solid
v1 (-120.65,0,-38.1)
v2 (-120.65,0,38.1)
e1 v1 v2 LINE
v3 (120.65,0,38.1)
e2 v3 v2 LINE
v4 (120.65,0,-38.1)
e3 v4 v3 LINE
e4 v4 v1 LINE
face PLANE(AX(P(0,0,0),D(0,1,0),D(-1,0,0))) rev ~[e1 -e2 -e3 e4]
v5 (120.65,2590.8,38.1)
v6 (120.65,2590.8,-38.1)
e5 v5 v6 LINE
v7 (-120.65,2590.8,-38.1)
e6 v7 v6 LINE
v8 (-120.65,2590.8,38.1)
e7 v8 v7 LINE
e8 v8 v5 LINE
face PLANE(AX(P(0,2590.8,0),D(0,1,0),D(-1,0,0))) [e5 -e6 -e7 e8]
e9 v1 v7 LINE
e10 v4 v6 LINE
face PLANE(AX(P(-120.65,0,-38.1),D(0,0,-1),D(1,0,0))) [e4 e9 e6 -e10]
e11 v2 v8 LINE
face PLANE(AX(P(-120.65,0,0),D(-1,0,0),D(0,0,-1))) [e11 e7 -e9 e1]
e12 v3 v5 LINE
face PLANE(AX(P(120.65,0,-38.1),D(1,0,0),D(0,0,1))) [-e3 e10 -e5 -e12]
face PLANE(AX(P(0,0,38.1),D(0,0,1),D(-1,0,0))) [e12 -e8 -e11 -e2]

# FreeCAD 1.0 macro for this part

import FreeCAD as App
import Part
import Sketcher

V = App.Vector
Q = App.Units.Quantity


def add_polygon(sketch, points):
    """Adds a closed chain of lines whose ends are joined by coincident constraints."""
    first, n = sketch.GeometryCount, len(points)
    for a, b in zip(points, points[1:] + points[:1]):
        sketch.addGeometry(Part.LineSegment(App.Vector(*a, 0), App.Vector(*b, 0)), False)
    for i in range(n):
        sketch.addConstraint(Sketcher.Constraint("Coincident", first + i, 2, first + (i + 1) % n, 1))

doc = App.newDocument("Part")
params = doc.addObject("Spreadsheet::Sheet", "Params")
for row, (alias, value) in enumerate([
    ("sketch1_height", "3 in"),
    ("sketch1_width", "9.5 in"),
    ("pad1_length", "102 in"),
], start=1):
    params.set(f"A{row}", alias)
    params.set(f"B{row}", "=" + value)
    params.setAlias(f"B{row}", alias)

body = doc.addObject("PartDesign::Body", "Body")

# Sketch on XZ plane
sketch1 = doc.addObject("Sketcher::SketchObject", "Sketch")
body.addObject(sketch1)
sketch1.AttachmentSupport = (doc.XZ_Plane, [""])
sketch1.MapMode = "FlatFace"
add_polygon(sketch1, [(-120.65, -38.1), (-120.65, 38.1), (120.65, 38.1), (120.65, -38.1)])  # lines 0-3
sketch1.addConstraint([
    Sketcher.Constraint("Vertical", 0),
    Sketcher.Constraint("Horizontal", 1),
    Sketcher.Constraint("Vertical", 2),
    Sketcher.Constraint("Horizontal", 3),
    Sketcher.Constraint("Symmetric", 0, 2, 2, 2, -1, 1),
    Sketcher.Constraint("DistanceY", 0, 1, 0, 2, Q("3 in")),
    Sketcher.Constraint("DistanceX", 1, 1, 1, 2, Q("9.5 in")),
])
sketch1.setExpression("Constraints[9]", "Params.sketch1_height")
sketch1.setExpression("Constraints[10]", "Params.sketch1_width")
pad1 = doc.addObject("PartDesign::Pad", "Pad")
body.addObject(pad1)
pad1.Profile = sketch1
pad1.setExpression("Length", "Params.pad1_length")
pad1.Reversed = True

doc.recompute()
